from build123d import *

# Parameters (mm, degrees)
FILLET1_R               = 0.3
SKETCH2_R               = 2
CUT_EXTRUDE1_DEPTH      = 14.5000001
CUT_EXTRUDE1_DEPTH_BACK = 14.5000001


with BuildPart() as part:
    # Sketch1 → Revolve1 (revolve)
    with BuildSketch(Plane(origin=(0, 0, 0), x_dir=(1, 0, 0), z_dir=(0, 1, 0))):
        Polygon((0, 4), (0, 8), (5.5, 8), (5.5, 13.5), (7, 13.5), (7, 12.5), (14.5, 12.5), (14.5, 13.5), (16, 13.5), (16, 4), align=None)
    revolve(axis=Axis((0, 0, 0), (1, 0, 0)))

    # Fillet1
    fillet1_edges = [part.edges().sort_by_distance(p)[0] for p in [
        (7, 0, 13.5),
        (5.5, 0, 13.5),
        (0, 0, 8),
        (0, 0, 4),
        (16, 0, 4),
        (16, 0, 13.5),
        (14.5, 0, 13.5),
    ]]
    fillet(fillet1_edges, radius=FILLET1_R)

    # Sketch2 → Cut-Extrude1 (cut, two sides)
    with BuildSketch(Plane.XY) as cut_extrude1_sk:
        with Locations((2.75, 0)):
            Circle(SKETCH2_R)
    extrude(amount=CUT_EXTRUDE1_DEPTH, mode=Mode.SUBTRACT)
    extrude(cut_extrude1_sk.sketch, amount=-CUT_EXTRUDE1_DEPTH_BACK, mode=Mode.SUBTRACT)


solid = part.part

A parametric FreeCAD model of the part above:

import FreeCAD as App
import Part
import Sketcher
from FreeCAD import Vector
Q = App.Units.Quantity


def edges_at(feature, points):
    """Names of the edges that pass closest to the given points."""
    edges = feature.Shape.Edges
    near = lambda p: min(range(len(edges)), key=lambda i: edges[i].distToShape(Part.Vertex(*p))[0])
    return sorted({f"Edge{near(p) + 1}" for p in points})


def add_polygon(sketch, points):
    """Adds a closed chain of lines whose ends are joined by coincident constraints."""
    first, n = sketch.GeometryCount, len(points)
    for a, b in zip(points, points[1:] + points[:1]):
        sketch.addGeometry(Part.LineSegment(App.Vector(*a, 0), App.Vector(*b, 0)), False)
    for i in range(n):
        sketch.addConstraint(Sketcher.Constraint("Coincident", first + i, 2, first + (i + 1) % n, 1))

doc = App.newDocument("Part")
params = doc.addObject("Spreadsheet::Sheet", "Params")
for row, (alias, value) in enumerate([
    ("sketch1_width", "16 mm"),
    ("sketch1_height", "4 mm"),
    ("sketch1_height2", "1 mm"),
    ("sketch1_width2", "1.5 mm"),
    ("sketch1_width3", "7.5 mm"),
    ("revolution_angle", "360 deg"),
    ("fillet_radius", "0.3 mm"),
    ("sketch2_diameter", "4 mm"),
], start=1):
    params.set(f"A{row}", alias)
    params.set(f"B{row}", "=" + value)
    params.setAlias(f"B{row}", alias)

body = doc.addObject("PartDesign::Body", "Body")

# Sketch on XZ plane
sketch1 = body.newObject("Sketcher::SketchObject", "Sketch")
sketch1.AttachmentSupport = (doc.getObject("XZ_Plane"), [""])
sketch1.MapMode = "FlatFace"
add_polygon(sketch1, [(0, -8), (0, -4), (16, -4), (16, -13.5), (14.5, -13.5), (14.5, -12.5), (7, -12.5), (7, -13.5), (5.5, -13.5), (5.5, -8)])  # lines 0-9
sketch1.addConstraint(Sketcher.Constraint("Vertical", 0))
sketch1.addConstraint(Sketcher.Constraint("Horizontal", 1))
sketch1.addConstraint(Sketcher.Constraint("Vertical", 2))
sketch1.addConstraint(Sketcher.Constraint("Horizontal", 3))
sketch1.addConstraint(Sketcher.Constraint("Vertical", 4))
sketch1.addConstraint(Sketcher.Constraint("Horizontal", 5))
sketch1.addConstraint(Sketcher.Constraint("Vertical", 6))
sketch1.addConstraint(Sketcher.Constraint("Horizontal", 7))
sketch1.addConstraint(Sketcher.Constraint("Vertical", 8))
sketch1.addConstraint(Sketcher.Constraint("Horizontal", 9))
sketch1.addConstraint(Sketcher.Constraint("PointOnObject", 0, 2, -2))
sketch1.addConstraint(Sketcher.Constraint("Horizontal", 3, 2, 6, 2))
sketch1.addConstraint(Sketcher.Constraint("Equal", 3, 7))
sketch1.addConstraint(Sketcher.Constraint("Equal", 9, 8))
sketch1.addConstraint(Sketcher.Constraint("DistanceX", 1, 1, 1, 2, Q("16 mm")))
sketch1.addConstraint(Sketcher.Constraint("DistanceY", 0, 1, 0, 2, Q("4 mm")))
sketch1.addConstraint(Sketcher.Constraint("DistanceY", 4, 1, 4, 2, Q("1 mm")))
sketch1.addConstraint(Sketcher.Constraint("DistanceX", 3, 2, 3, 1, Q("1.5 mm")))
sketch1.addConstraint(Sketcher.Constraint("DistanceX", 5, 2, 5, 1, Q("7.5 mm")))
sketch1.addConstraint(Sketcher.Constraint("DistanceY", 0, 2, -1, 1, Q("4 mm")))
sketch1.setExpression("Constraints[24]", "Params.sketch1_width")
sketch1.setExpression("Constraints[25]", "Params.sketch1_height")
sketch1.setExpression("Constraints[26]", "Params.sketch1_height2")
sketch1.setExpression("Constraints[27]", "Params.sketch1_width2")
sketch1.setExpression("Constraints[28]", "Params.sketch1_width3")
revolution = body.newObject("PartDesign::Revolution", "Revolution")
revolution.Profile = sketch1
revolution.ReferenceAxis = (sketch1, ["H_Axis"])
revolution.setExpression("Angle", "Params.revolution_angle")
doc.recompute()

fillet = body.newObject("PartDesign::Fillet", "Fillet")
fillet.Base = (revolution, edges_at(revolution, [
    (7, 0, 13.5),
    (5.5, 0, 13.5),
    (0, 0, 8),
    (0, 0, 4),
    (16, 0, 4),
    (16, 0, 13.5),
    (14.5, 0, 13.5),
]))
fillet.setExpression("Radius", "Params.fillet_radius")

# Sketch on XY plane
sketch2 = body.newObject("Sketcher::SketchObject", "Sketch001")
sketch2.AttachmentSupport = (doc.getObject("XY_Plane"), [""])
sketch2.MapMode = "FlatFace"
sketch2.addGeometry(Part.Circle(Vector(2.75, 0, 0), Vector(0, 0, 1), 2), False)
sketch2.addConstraint(Sketcher.Constraint("PointOnObject", 0, 3, -1))
sketch2.addConstraint(Sketcher.Constraint("Diameter", 0, Q("4 mm")))
sketch2.addConstraint(Sketcher.Constraint("DistanceX", -1, 1, 0, 3, Q("2.75 mm")))
sketch2.setExpression("Constraints[1]", "Params.sketch2_diameter")
pocket1 = body.newObject("PartDesign::Pocket", "Pocket")
pocket1.Profile = sketch2
pocket1.Type = "ThroughAll"
pocket1.Midplane = True

doc.recompute()
